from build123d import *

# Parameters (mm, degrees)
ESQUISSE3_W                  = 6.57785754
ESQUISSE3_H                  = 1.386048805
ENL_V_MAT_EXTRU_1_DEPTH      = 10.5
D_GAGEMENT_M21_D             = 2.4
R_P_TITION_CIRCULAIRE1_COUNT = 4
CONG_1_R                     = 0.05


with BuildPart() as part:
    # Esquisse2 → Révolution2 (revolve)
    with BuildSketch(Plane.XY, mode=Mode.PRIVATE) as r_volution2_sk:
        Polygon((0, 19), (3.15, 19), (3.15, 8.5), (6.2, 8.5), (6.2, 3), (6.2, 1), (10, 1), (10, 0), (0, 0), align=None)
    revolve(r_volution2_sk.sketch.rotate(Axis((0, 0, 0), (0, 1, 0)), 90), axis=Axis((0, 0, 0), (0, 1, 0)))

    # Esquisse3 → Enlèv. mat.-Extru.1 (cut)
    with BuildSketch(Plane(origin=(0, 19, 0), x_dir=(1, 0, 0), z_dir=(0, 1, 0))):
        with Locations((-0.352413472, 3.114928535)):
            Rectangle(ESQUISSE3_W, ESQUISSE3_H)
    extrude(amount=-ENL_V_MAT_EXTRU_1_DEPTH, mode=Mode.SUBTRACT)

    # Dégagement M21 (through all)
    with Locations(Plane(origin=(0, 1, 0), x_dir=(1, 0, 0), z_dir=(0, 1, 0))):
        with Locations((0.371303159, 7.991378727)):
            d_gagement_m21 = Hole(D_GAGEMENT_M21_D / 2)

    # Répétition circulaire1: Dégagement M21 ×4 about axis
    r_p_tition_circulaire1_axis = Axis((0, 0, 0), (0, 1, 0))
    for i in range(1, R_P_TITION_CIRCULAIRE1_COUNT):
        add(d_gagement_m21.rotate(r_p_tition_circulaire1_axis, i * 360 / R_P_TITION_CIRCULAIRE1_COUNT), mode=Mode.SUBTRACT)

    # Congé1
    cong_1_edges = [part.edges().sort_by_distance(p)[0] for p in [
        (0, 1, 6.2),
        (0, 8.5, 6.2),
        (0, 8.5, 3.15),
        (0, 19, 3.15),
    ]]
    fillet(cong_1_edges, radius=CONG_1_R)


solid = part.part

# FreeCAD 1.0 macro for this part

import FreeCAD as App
import Part
import Sketcher
Q = App.Units.Quantity


def edges_at(feature, points):
    """Names of the edges that pass closest to the given points."""
    edges = feature.Shape.Edges
    near = lambda p: min(range(len(edges)), key=lambda i: edges[i].distToShape(Part.Vertex(*p))[0])
    return sorted({f"Edge{near(p) + 1}" for p in points})

doc = App.newDocument("Part")
body = doc.addObject("PartDesign::Body", "Body")

sketch1 = doc.addObject("Sketcher::SketchObject", "Sketch")
body.addObject(sketch1)
sketch1.AttachmentSupport = (doc.XY_Plane, [""])
sketch1.MapMode = "FlatFace"
sketch1.addGeometry(Part.LineSegment(App.Vector(3.1, 19, 0), App.Vector(0, 19, 0)), False)
sketch1.addGeometry(Part.LineSegment(App.Vector(0, 19, 0), App.Vector(0, 0, 0)), False)
sketch1.addGeometry(Part.LineSegment(App.Vector(0, 0, 0), App.Vector(10, 0, 0)), False)
sketch1.addGeometry(Part.LineSegment(App.Vector(10, 0, 0), App.Vector(10, 1, 0)), False)
sketch1.addGeometry(Part.LineSegment(App.Vector(10, 1, 0), App.Vector(6.2, 1, 0)), False)
sketch1.addGeometry(Part.LineSegment(App.Vector(6.2, 1, 0), App.Vector(6.2, 8.5, 0)), False)
sketch1.addGeometry(Part.LineSegment(App.Vector(6.2, 8.5, 0), App.Vector(3.1, 8.5, 0)), False)
sketch1.addGeometry(Part.LineSegment(App.Vector(3.1, 8.5, 0), App.Vector(3.1, 19, 0)), False)
sketch1.addConstraint(Sketcher.Constraint("Coincident", 0, 2, 1, 1))
sketch1.addConstraint(Sketcher.Constraint("Coincident", 1, 2, 2, 1))
sketch1.addConstraint(Sketcher.Constraint("Coincident", 2, 2, 3, 1))
sketch1.addConstraint(Sketcher.Constraint("Coincident", 3, 2, 4, 1))
sketch1.addConstraint(Sketcher.Constraint("Coincident", 4, 2, 5, 1))
sketch1.addConstraint(Sketcher.Constraint("Coincident", 5, 2, 6, 1))
sketch1.addConstraint(Sketcher.Constraint("Coincident", 6, 2, 7, 1))
sketch1.addConstraint(Sketcher.Constraint("Coincident", 7, 2, 0, 1))
sketch1.addConstraint(Sketcher.Constraint("Horizontal", 0))
sketch1.addConstraint(Sketcher.Constraint("Vertical", 1))
sketch1.addConstraint(Sketcher.Constraint("Horizontal", 2))
sketch1.addConstraint(Sketcher.Constraint("Vertical", 3))
sketch1.addConstraint(Sketcher.Constraint("Horizontal", 4))
sketch1.addConstraint(Sketcher.Constraint("Vertical", 5))
sketch1.addConstraint(Sketcher.Constraint("Horizontal", 6))
sketch1.addConstraint(Sketcher.Constraint("Vertical", 7))
sketch1.addConstraint(Sketcher.Constraint("Coincident", 1, 2, -1, 1))
sketch1.addConstraint(Sketcher.Constraint("DistanceX", 2, 1, 2, 2, Q("10 mm")))
sketch1.addConstraint(Sketcher.Constraint("DistanceY", 1, 2, 1, 1, Q("19 mm")))
sketch1.addConstraint(Sketcher.Constraint("DistanceY", 3, 1, 3, 2, Q("1 mm")))
sketch1.addConstraint(Sketcher.Constraint("DistanceX", 4, 2, 4, 1, Q("3.8 mm")))
sketch1.addConstraint(Sketcher.Constraint("DistanceY", 5, 1, 5, 2, Q("7.5 mm")))
sketch1.addConstraint(Sketcher.Constraint("DistanceX", 0, 2, 0, 1, Q("3.15 mm")))
revolution = doc.addObject("PartDesign::Revolution", "Revolution")
body.addObject(revolution)
revolution.Profile = sketch1
revolution.ReferenceAxis = (sketch1, ["V_Axis"])
revolution.Angle = 360

sketch2 = doc.addObject("Sketcher::SketchObject", "Sketch001")
body.addObject(sketch2)
sketch2.AttachmentSupport = (doc.XZ_Plane, [""])
sketch2.MapMode = "FlatFace"
sketch2.AttachmentOffset = App.Placement(App.Vector(0, 0, -19), App.Rotation())
sketch2.addGeometry(Part.LineSegment(App.Vector(-3.6, -3.8, 0), App.Vector(-3.6, -2.4, 0)), False)
sketch2.addGeometry(Part.LineSegment(App.Vector(-3.6, -2.4, 0), App.Vector(2.9, -2.4, 0)), False)
sketch2.addGeometry(Part.LineSegment(App.Vector(2.9, -2.4, 0), App.Vector(2.9, -3.8, 0)), False)
sketch2.addGeometry(Part.LineSegment(App.Vector(2.9, -3.8, 0), App.Vector(-3.6, -3.8, 0)), False)
sketch2.addConstraint(Sketcher.Constraint("Coincident", 0, 2, 1, 1))
sketch2.addConstraint(Sketcher.Constraint("Coincident", 1, 2, 2, 1))
sketch2.addConstraint(Sketcher.Constraint("Coincident", 2, 2, 3, 1))
sketch2.addConstraint(Sketcher.Constraint("Coincident", 3, 2, 0, 1))
sketch2.addConstraint(Sketcher.Constraint("Vertical", 0))
sketch2.addConstraint(Sketcher.Constraint("Horizontal", 1))
sketch2.addConstraint(Sketcher.Constraint("Vertical", 2))
sketch2.addConstraint(Sketcher.Constraint("Horizontal", 3))
sketch2.addConstraint(Sketcher.Constraint("DistanceY", 0, 1, 0, 2, Q("1.386049 mm")))
sketch2.addConstraint(Sketcher.Constraint("DistanceX", 1, 1, 1, 2, Q("6.577858 mm")))
sketch2.addConstraint(Sketcher.Constraint("DistanceX", 0, 2, -1, 1, Q("3.641342 mm")))
sketch2.addConstraint(Sketcher.Constraint("DistanceY", 0, 2, -1, 1, Q("2.421904 mm")))
pocket1 = doc.addObject("PartDesign::Pocket", "Pocket")
body.addObject(pocket1)
pocket1.Profile = sketch2
pocket1.Length = 10.5
pocket1.Reversed = True

sketch3 = doc.addObject("Sketcher::SketchObject", "Sketch002")
body.addObject(sketch3)
sketch3.AttachmentSupport = (doc.XZ_Plane, [""])
sketch3.MapMode = "FlatFace"
sketch3.AttachmentOffset = App.Placement(App.Vector(0, 0, -1), App.Rotation())
sketch3.addGeometry(Part.Circle(App.Vector(0.4, -8, 0), App.Vector(0, 0, 1), 1.2), False)
sketch3.addConstraint(Sketcher.Constraint("Diameter", 0, Q("2.4 mm")))
sketch3.addConstraint(Sketcher.Constraint("DistanceY", 0, 3, -1, 1, Q("7.991379 mm")))
sketch3.addConstraint(Sketcher.Constraint("DistanceX", -1, 1, 0, 3, Q("0.371303 mm")))
doc.recompute()
hole = doc.addObject("PartDesign::Hole", "Hole")
body.addObject(hole)
hole.Profile = sketch3
hole.ThreadType = "None"
hole.Diameter = 2.4
hole.DepthType = "ThroughAll"
hole.Reversed = True
doc.recompute()

polarpattern = doc.addObject("PartDesign::PolarPattern", "PolarPattern")
body.addObject(polarpattern)
polarpattern.Originals = [hole]
polarpattern.Axis = (doc.Y_Axis, [""])
polarpattern.Angle = 360
polarpattern.Occurrences = 4
body.Tip = polarpattern
doc.recompute()

fillet = doc.addObject("PartDesign::Fillet", "Fillet")
body.addObject(fillet)
fillet.Base = (polarpattern, edges_at(polarpattern, [
    (0, 1, 6.2),
    (0, 8.5, 6.2),
    (0, 8.5, 3.15),
    (0, 19, 3.15),
]))
fillet.Radius = 0.05

doc.recompute()
